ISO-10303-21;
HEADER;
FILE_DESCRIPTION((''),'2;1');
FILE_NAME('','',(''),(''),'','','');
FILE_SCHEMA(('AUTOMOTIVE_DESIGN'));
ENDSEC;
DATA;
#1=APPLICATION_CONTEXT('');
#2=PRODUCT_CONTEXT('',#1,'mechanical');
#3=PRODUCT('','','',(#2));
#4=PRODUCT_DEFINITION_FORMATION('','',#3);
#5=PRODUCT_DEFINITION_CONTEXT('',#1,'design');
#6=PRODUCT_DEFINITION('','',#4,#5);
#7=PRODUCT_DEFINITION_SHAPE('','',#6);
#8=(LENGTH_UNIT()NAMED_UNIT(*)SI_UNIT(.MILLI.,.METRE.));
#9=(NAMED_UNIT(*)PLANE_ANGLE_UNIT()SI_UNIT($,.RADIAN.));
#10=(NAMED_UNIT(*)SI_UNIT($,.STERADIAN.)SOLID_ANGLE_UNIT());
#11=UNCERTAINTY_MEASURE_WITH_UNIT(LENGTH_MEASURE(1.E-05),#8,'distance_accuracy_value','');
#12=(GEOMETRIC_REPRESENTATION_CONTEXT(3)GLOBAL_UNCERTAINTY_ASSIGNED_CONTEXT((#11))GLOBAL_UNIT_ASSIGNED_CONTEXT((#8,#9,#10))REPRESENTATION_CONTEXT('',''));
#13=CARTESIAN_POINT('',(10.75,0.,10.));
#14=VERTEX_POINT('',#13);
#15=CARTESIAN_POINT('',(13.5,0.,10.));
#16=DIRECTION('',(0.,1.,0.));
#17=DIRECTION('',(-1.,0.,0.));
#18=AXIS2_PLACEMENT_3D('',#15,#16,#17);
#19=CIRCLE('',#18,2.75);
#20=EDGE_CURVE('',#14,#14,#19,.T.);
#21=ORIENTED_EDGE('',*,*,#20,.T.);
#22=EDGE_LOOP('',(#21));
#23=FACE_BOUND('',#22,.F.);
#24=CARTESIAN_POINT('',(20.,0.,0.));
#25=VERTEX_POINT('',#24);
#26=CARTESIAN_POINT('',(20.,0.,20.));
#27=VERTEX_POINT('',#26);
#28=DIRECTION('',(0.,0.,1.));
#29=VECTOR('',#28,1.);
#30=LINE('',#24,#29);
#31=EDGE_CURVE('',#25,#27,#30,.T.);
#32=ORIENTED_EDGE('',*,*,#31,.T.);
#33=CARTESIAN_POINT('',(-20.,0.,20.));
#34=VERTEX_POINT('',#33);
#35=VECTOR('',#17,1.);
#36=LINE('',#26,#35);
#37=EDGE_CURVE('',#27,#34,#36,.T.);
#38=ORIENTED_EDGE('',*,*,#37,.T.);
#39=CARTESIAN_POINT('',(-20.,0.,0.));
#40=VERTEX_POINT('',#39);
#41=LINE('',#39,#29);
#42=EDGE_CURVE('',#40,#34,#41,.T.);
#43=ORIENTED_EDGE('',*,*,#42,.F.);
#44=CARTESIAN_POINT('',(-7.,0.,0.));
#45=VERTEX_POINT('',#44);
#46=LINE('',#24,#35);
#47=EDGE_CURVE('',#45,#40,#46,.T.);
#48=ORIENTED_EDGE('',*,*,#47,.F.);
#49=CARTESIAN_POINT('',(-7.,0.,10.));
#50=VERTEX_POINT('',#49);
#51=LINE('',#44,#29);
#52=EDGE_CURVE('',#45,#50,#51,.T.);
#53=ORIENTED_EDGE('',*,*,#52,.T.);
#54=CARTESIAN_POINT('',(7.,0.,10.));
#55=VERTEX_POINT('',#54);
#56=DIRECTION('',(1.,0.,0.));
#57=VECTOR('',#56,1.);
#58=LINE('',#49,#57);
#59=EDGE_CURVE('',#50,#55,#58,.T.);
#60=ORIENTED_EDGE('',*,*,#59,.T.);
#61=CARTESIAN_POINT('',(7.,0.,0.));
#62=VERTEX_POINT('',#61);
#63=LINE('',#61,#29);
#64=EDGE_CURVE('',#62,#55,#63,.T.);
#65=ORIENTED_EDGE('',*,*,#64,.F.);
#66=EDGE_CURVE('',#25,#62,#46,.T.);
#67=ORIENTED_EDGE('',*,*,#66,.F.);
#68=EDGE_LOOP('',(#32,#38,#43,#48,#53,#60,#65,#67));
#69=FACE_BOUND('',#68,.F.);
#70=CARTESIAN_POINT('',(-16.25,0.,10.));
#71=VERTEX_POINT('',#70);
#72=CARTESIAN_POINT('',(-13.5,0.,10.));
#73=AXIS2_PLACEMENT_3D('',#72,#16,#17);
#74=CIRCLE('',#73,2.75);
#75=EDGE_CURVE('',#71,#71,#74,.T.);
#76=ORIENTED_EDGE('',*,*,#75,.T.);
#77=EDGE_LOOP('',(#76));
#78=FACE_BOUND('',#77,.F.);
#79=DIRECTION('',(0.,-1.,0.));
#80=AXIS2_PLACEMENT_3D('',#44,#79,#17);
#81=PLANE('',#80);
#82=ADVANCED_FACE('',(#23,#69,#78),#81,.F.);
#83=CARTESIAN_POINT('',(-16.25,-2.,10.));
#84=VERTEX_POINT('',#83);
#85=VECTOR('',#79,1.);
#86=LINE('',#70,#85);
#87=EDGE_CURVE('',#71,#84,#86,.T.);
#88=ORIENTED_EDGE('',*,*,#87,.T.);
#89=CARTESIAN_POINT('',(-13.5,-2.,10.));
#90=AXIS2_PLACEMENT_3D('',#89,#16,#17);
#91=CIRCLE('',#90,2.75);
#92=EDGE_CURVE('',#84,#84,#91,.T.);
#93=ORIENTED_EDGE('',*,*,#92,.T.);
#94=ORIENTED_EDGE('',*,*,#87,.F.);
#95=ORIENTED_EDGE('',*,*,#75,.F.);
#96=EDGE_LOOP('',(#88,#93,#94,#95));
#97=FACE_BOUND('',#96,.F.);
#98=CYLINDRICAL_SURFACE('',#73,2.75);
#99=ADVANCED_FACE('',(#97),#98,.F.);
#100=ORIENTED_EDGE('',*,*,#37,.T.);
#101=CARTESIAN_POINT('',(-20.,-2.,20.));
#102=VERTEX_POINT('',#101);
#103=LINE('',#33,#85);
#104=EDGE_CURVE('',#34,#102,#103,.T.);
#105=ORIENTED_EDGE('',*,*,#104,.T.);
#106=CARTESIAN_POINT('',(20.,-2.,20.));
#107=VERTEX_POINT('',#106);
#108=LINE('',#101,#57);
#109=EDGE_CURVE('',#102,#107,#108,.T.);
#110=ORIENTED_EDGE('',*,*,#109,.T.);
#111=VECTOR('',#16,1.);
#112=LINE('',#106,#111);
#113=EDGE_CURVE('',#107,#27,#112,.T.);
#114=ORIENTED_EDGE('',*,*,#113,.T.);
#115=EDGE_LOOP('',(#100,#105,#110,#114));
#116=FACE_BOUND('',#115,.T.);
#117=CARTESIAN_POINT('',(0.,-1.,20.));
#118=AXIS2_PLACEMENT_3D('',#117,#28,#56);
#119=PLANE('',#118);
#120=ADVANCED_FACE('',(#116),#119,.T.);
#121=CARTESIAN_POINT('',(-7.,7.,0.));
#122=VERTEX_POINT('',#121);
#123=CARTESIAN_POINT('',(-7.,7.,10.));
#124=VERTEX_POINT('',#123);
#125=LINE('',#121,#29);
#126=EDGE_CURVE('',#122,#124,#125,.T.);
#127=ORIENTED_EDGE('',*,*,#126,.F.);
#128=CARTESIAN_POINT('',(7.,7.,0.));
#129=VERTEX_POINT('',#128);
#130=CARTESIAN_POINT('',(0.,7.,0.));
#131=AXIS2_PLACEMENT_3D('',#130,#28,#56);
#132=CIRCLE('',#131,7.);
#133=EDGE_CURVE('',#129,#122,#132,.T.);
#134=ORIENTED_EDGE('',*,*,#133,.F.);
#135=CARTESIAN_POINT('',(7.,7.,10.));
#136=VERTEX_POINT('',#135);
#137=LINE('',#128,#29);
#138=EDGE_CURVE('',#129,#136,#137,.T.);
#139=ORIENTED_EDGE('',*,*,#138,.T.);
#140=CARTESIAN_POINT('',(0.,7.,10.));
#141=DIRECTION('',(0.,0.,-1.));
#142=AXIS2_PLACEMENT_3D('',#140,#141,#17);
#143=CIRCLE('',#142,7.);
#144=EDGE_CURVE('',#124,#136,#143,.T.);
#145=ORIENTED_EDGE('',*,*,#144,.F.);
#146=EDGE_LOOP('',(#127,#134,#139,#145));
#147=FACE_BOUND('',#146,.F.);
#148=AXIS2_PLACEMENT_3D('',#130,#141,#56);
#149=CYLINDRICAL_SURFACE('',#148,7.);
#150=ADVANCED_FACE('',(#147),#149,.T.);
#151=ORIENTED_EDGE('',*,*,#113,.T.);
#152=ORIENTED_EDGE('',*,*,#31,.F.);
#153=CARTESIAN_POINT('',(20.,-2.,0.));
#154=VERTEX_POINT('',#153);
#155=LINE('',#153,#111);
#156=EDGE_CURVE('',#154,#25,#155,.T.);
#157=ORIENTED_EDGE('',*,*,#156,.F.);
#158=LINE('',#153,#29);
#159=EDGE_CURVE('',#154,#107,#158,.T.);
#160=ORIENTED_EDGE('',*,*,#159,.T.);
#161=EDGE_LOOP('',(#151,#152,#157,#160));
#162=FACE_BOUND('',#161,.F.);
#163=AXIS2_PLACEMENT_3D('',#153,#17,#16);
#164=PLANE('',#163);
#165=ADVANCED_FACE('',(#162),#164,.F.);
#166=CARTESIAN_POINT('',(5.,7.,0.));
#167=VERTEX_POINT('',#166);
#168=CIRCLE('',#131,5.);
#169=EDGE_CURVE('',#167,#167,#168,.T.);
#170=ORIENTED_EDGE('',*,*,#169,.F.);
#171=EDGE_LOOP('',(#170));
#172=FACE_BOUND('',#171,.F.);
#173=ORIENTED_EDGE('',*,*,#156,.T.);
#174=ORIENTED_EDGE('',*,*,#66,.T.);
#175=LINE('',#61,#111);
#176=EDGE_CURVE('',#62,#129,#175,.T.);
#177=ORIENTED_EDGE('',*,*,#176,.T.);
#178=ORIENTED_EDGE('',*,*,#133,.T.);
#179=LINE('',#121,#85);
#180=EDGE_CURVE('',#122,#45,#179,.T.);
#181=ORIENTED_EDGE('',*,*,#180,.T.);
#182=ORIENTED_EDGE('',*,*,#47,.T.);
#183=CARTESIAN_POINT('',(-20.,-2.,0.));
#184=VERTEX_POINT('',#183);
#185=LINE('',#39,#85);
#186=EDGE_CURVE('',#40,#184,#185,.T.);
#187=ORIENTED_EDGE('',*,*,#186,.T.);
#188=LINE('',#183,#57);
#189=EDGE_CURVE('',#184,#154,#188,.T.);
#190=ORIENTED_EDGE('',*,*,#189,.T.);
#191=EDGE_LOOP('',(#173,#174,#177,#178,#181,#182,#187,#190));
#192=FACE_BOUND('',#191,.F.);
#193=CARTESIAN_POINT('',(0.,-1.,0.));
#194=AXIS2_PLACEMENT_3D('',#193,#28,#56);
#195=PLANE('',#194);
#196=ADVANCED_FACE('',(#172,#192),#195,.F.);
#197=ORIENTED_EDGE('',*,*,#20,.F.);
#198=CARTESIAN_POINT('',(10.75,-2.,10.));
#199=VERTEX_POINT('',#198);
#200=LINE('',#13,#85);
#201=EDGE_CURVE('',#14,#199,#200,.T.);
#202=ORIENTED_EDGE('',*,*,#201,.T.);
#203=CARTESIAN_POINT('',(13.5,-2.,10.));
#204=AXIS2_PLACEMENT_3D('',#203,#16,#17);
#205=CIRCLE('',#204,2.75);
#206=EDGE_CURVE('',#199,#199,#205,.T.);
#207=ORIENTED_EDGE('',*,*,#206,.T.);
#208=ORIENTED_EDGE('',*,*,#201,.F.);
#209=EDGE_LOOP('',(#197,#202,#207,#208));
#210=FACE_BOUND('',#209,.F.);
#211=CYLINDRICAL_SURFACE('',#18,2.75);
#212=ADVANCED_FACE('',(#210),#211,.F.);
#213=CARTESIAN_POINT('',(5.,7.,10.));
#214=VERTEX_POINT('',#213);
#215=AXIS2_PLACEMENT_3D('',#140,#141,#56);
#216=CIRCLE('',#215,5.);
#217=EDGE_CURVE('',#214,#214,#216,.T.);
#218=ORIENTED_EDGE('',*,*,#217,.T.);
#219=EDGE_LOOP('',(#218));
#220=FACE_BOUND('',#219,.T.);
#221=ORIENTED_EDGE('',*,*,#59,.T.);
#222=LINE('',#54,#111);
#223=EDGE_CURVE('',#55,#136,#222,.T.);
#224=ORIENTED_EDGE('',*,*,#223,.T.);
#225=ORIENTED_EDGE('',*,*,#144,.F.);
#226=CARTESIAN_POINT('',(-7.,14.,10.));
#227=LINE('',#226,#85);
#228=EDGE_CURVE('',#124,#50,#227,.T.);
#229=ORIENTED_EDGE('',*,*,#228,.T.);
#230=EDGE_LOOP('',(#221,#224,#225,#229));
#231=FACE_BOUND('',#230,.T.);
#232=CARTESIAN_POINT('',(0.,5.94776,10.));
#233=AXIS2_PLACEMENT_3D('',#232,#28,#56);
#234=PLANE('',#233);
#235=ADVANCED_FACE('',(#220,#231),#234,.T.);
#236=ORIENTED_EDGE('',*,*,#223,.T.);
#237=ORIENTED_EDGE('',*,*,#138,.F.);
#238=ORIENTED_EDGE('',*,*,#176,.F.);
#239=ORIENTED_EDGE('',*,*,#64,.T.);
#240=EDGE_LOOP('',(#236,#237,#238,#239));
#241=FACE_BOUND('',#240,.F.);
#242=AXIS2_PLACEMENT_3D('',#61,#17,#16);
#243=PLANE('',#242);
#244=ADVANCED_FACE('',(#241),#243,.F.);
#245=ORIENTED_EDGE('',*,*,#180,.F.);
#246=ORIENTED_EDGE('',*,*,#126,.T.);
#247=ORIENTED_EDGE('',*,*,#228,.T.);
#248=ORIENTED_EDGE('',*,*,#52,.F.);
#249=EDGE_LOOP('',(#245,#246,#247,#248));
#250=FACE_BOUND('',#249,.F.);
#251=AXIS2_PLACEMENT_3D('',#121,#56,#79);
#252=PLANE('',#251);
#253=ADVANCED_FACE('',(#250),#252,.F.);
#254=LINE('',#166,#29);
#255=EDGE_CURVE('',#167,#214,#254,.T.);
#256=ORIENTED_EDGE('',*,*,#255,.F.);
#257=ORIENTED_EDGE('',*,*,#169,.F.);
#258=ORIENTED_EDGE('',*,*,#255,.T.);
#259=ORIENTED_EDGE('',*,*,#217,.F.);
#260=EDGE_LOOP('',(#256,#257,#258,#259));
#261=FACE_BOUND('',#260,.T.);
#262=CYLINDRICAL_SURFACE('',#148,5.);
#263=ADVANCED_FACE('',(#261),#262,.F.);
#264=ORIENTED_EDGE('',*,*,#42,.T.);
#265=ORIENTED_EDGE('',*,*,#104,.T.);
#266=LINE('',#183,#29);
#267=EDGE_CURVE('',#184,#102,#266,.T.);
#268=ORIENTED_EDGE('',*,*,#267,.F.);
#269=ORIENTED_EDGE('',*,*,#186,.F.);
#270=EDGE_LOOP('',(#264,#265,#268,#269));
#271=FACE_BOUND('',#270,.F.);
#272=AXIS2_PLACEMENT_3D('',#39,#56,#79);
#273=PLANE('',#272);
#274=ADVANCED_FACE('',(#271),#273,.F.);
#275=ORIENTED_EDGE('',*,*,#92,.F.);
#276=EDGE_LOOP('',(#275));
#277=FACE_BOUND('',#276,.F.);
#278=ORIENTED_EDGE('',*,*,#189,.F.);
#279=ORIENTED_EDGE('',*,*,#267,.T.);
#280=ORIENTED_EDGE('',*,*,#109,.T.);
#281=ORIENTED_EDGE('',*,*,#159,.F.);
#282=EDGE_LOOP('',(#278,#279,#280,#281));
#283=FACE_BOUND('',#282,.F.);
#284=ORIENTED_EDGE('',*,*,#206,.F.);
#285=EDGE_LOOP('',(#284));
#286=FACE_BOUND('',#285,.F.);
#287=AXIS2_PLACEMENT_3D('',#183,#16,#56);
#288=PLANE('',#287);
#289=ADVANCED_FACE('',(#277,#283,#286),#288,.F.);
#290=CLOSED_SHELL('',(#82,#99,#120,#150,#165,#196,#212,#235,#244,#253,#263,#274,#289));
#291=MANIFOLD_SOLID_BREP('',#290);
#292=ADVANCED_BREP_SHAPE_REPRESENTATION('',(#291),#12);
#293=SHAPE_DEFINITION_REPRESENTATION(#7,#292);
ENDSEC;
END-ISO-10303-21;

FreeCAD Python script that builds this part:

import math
import FreeCAD as App
import Part
import Sketcher

V = App.Vector
Q = App.Units.Quantity

doc = App.newDocument("Part")
body = doc.addObject("PartDesign::Body", "Body")

# Sketch on XY plane
sketch1 = body.newObject("Sketcher::SketchObject", "Sketch")
sketch1.AttachmentSupport = (doc.getObject("XY_Plane"), [""])
sketch1.MapMode = "FlatFace"
sketch1.addGeometry(Part.LineSegment(V(-20, -2, 0), V(20, -2, 0)), False)
sketch1.addGeometry(Part.LineSegment(V(20, -2, 0), V(20, 0, 0)), False)
sketch1.addGeometry(Part.LineSegment(V(20, 0, 0), V(7, 0, 0)), False)
sketch1.addGeometry(Part.LineSegment(V(7, 0, 0), V(7, 7, 0)), False)
sketch1.addGeometry(Part.ArcOfCircle(Part.Circle(V(0, 7, 0), V(0, 0, 1), 7), math.radians(0), math.radians(180)), False)
sketch1.addGeometry(Part.LineSegment(V(-7, 7, 0), V(-7, 0, 0)), False)
sketch1.addGeometry(Part.LineSegment(V(-7, 0, 0), V(-20, 0, 0)), False)
sketch1.addGeometry(Part.LineSegment(V(-20, 0, 0), V(-20, -2, 0)), False)
sketch1.addGeometry(Part.Circle(V(0, 7, 0), V(0, 0, 1), 5), False)
sketch1.addConstraint(Sketcher.Constraint("Coincident", 0, 2, 1, 1))
sketch1.addConstraint(Sketcher.Constraint("Coincident", 1, 2, 2, 1))
sketch1.addConstraint(Sketcher.Constraint("Coincident", 2, 2, 3, 1))
sketch1.addConstraint(Sketcher.Constraint("Tangent", 3, 2, 4, 1))
sketch1.addConstraint(Sketcher.Constraint("Tangent", 4, 2, 5, 1))
sketch1.addConstraint(Sketcher.Constraint("Coincident", 5, 2, 6, 1))
sketch1.addConstraint(Sketcher.Constraint("Coincident", 6, 2, 7, 1))
sketch1.addConstraint(Sketcher.Constraint("Coincident", 7, 2, 0, 1))
sketch1.addConstraint(Sketcher.Constraint("Horizontal", 0))
sketch1.addConstraint(Sketcher.Constraint("Vertical", 1))
sketch1.addConstraint(Sketcher.Constraint("Horizontal", 2))
sketch1.addConstraint(Sketcher.Constraint("Vertical", 3))
sketch1.addConstraint(Sketcher.Constraint("Vertical", 5))
sketch1.addConstraint(Sketcher.Constraint("Horizontal", 6))
sketch1.addConstraint(Sketcher.Constraint("Vertical", 7))
sketch1.addConstraint(Sketcher.Constraint("Coincident", 8, 3, 4, 3))
sketch1.addConstraint(Sketcher.Constraint("Symmetric", 2, 2, 5, 2, -1, 1))
sketch1.addConstraint(Sketcher.Constraint("Symmetric", 1, 2, 6, 2, -2))
sketch1.addConstraint(Sketcher.Constraint("Diameter", 8, Q("10 mm")))
sketch1.addConstraint(Sketcher.Constraint("Radius", 4, Q("7 mm")))
sketch1.addConstraint(Sketcher.Constraint("DistanceX", 0, 1, 0, 2, Q("40 mm")))
sketch1.addConstraint(Sketcher.Constraint("DistanceY", 1, 1, 1, 2, Q("2 mm")))
sketch1.addConstraint(Sketcher.Constraint("DistanceY", 3, 1, 3, 2, Q("7 mm")))
pad1 = body.newObject("PartDesign::Pad", "Pad")
pad1.Profile = sketch1
pad1.Length = 20

# Sketch on XZ plane
sketch2 = body.newObject("Sketcher::SketchObject", "Sketch001")
sketch2.AttachmentSupport = (doc.getObject("XZ_Plane"), [""])
sketch2.MapMode = "FlatFace"
sketch2.addGeometry(Part.Circle(V(13.5, 10, 0), V(0, 0, 1), 2.8), False)
sketch2.addGeometry(Part.Circle(V(-13.5, 10, 0), V(0, 0, 1), 2.8), False)
sketch2.addConstraint(Sketcher.Constraint("Equal", 0, 1))
sketch2.addConstraint(Sketcher.Constraint("Symmetric", 0, 3, 1, 3, -2))
sketch2.addConstraint(Sketcher.Constraint("Diameter", 0, Q("5.5 mm")))
sketch2.addConstraint(Sketcher.Constraint("DistanceY", -1, 1, 0, 3, Q("10 mm")))
sketch2.addConstraint(Sketcher.Constraint("DistanceX", 1, 3, 0, 3, Q("27 mm")))
pocket1 = body.newObject("PartDesign::Pocket", "Pocket")
pocket1.Profile = sketch2
pocket1.Type = "ThroughAll"
pocket1.Reversed = True

# Sketch on XY plane
sketch3 = body.newObject("Sketcher::SketchObject", "Sketch002")
sketch3.AttachmentSupport = (doc.getObject("XY_Plane"), [""])
sketch3.MapMode = "FlatFace"
sketch3.AttachmentOffset = App.Placement(V(0, 0, 20), App.Rotation())
sketch3.addGeometry(Part.LineSegment(V(-7, 0, 0), V(7, 0, 0)), False)
sketch3.addGeometry(Part.LineSegment(V(7, 0, 0), V(7, 14, 0)), False)
sketch3.addGeometry(Part.LineSegment(V(7, 14, 0), V(-7, 14, 0)), False)
sketch3.addGeometry(Part.LineSegment(V(-7, 14, 0), V(-7, 0, 0)), False)
sketch3.addConstraint(Sketcher.Constraint("Coincident", 0, 2, 1, 1))
sketch3.addConstraint(Sketcher.Constraint("Coincident", 1, 2, 2, 1))
sketch3.addConstraint(Sketcher.Constraint("Coincident", 2, 2, 3, 1))
sketch3.addConstraint(Sketcher.Constraint("Coincident", 3, 2, 0, 1))
sketch3.addConstraint(Sketcher.Constraint("Horizontal", 0))
sketch3.addConstraint(Sketcher.Constraint("Vertical", 1))
sketch3.addConstraint(Sketcher.Constraint("Horizontal", 2))
sketch3.addConstraint(Sketcher.Constraint("Vertical", 3))
sketch3.addConstraint(Sketcher.Constraint("Symmetric", 0, 2, 3, 2, -1, 1))
sketch3.addConstraint(Sketcher.Constraint("Equal", 2, 1))
sketch3.addConstraint(Sketcher.Constraint("DistanceX", 0, 1, 0, 2, Q("14 mm")))
pocket2 = body.newObject("PartDesign::Pocket", "Pocket001")
pocket2.Profile = sketch3
pocket2.Length = 10

doc.recompute()
